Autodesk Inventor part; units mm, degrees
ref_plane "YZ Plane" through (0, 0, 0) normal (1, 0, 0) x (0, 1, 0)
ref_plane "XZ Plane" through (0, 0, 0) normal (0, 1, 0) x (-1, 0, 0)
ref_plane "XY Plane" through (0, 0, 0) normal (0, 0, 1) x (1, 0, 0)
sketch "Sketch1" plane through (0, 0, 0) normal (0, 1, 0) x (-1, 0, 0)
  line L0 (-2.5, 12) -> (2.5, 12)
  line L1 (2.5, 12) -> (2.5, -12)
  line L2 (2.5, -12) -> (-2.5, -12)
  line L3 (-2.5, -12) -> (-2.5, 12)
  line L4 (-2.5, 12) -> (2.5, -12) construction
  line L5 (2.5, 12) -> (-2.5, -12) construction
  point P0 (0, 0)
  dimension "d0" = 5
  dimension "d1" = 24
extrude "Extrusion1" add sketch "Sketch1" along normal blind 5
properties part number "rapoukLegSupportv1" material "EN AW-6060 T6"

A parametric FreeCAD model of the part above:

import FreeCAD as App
import Part
import Sketcher

V = App.Vector
Q = App.Units.Quantity

doc = App.newDocument("Part")
params = doc.addObject("Spreadsheet::Sheet", "Params")
for row, (alias, value) in enumerate([
    ("sketch1_width", "5 mm"),
    ("sketch1_height", "24 mm"),
    ("pad1_length", "5 mm"),
], start=1):
    params.set(f"A{row}", alias)
    params.set(f"B{row}", "=" + value)
    params.setAlias(f"B{row}", alias)

body = doc.addObject("PartDesign::Body", "Body")

# Sketch on XZ plane
sketch1 = body.newObject("Sketcher::SketchObject", "Sketch")
sketch1.AttachmentSupport = (doc.getObject("XZ_Plane"), [""])
sketch1.MapMode = "FlatFace"
sketch1.addGeometry([
    Part.LineSegment(V(-2, 12, 0), V(2, 12, 0)),
    Part.LineSegment(V(2, 12, 0), V(2, -12, 0)),
    Part.LineSegment(V(2, -12, 0), V(-2, -12, 0)),
    Part.LineSegment(V(-2, -12, 0), V(-2, 12, 0)),
], False)
sketch1.addConstraint([
    Sketcher.Constraint("Coincident", 0, 2, 1, 1),
    Sketcher.Constraint("Coincident", 1, 2, 2, 1),
    Sketcher.Constraint("Coincident", 2, 2, 3, 1),
    Sketcher.Constraint("Coincident", 3, 2, 0, 1),
    Sketcher.Constraint("Horizontal", 0),
    Sketcher.Constraint("Vertical", 1),
    Sketcher.Constraint("Horizontal", 2),
    Sketcher.Constraint("Vertical", 3),
    Sketcher.Constraint("Symmetric", 0, 2, 2, 2, -1, 1),
    Sketcher.Constraint("DistanceX", 0, 1, 0, 2, Q("5 mm")),
    Sketcher.Constraint("DistanceY", 1, 2, 1, 1, Q("24 mm")),
])
sketch1.setExpression("Constraints[9]", "Params.sketch1_width")
sketch1.setExpression("Constraints[10]", "Params.sketch1_height")
pad1 = body.newObject("PartDesign::Pad", "Pad")
pad1.Profile = sketch1
pad1.setExpression("Length", "Params.pad1_length")
pad1.Reversed = True

doc.recompute()
